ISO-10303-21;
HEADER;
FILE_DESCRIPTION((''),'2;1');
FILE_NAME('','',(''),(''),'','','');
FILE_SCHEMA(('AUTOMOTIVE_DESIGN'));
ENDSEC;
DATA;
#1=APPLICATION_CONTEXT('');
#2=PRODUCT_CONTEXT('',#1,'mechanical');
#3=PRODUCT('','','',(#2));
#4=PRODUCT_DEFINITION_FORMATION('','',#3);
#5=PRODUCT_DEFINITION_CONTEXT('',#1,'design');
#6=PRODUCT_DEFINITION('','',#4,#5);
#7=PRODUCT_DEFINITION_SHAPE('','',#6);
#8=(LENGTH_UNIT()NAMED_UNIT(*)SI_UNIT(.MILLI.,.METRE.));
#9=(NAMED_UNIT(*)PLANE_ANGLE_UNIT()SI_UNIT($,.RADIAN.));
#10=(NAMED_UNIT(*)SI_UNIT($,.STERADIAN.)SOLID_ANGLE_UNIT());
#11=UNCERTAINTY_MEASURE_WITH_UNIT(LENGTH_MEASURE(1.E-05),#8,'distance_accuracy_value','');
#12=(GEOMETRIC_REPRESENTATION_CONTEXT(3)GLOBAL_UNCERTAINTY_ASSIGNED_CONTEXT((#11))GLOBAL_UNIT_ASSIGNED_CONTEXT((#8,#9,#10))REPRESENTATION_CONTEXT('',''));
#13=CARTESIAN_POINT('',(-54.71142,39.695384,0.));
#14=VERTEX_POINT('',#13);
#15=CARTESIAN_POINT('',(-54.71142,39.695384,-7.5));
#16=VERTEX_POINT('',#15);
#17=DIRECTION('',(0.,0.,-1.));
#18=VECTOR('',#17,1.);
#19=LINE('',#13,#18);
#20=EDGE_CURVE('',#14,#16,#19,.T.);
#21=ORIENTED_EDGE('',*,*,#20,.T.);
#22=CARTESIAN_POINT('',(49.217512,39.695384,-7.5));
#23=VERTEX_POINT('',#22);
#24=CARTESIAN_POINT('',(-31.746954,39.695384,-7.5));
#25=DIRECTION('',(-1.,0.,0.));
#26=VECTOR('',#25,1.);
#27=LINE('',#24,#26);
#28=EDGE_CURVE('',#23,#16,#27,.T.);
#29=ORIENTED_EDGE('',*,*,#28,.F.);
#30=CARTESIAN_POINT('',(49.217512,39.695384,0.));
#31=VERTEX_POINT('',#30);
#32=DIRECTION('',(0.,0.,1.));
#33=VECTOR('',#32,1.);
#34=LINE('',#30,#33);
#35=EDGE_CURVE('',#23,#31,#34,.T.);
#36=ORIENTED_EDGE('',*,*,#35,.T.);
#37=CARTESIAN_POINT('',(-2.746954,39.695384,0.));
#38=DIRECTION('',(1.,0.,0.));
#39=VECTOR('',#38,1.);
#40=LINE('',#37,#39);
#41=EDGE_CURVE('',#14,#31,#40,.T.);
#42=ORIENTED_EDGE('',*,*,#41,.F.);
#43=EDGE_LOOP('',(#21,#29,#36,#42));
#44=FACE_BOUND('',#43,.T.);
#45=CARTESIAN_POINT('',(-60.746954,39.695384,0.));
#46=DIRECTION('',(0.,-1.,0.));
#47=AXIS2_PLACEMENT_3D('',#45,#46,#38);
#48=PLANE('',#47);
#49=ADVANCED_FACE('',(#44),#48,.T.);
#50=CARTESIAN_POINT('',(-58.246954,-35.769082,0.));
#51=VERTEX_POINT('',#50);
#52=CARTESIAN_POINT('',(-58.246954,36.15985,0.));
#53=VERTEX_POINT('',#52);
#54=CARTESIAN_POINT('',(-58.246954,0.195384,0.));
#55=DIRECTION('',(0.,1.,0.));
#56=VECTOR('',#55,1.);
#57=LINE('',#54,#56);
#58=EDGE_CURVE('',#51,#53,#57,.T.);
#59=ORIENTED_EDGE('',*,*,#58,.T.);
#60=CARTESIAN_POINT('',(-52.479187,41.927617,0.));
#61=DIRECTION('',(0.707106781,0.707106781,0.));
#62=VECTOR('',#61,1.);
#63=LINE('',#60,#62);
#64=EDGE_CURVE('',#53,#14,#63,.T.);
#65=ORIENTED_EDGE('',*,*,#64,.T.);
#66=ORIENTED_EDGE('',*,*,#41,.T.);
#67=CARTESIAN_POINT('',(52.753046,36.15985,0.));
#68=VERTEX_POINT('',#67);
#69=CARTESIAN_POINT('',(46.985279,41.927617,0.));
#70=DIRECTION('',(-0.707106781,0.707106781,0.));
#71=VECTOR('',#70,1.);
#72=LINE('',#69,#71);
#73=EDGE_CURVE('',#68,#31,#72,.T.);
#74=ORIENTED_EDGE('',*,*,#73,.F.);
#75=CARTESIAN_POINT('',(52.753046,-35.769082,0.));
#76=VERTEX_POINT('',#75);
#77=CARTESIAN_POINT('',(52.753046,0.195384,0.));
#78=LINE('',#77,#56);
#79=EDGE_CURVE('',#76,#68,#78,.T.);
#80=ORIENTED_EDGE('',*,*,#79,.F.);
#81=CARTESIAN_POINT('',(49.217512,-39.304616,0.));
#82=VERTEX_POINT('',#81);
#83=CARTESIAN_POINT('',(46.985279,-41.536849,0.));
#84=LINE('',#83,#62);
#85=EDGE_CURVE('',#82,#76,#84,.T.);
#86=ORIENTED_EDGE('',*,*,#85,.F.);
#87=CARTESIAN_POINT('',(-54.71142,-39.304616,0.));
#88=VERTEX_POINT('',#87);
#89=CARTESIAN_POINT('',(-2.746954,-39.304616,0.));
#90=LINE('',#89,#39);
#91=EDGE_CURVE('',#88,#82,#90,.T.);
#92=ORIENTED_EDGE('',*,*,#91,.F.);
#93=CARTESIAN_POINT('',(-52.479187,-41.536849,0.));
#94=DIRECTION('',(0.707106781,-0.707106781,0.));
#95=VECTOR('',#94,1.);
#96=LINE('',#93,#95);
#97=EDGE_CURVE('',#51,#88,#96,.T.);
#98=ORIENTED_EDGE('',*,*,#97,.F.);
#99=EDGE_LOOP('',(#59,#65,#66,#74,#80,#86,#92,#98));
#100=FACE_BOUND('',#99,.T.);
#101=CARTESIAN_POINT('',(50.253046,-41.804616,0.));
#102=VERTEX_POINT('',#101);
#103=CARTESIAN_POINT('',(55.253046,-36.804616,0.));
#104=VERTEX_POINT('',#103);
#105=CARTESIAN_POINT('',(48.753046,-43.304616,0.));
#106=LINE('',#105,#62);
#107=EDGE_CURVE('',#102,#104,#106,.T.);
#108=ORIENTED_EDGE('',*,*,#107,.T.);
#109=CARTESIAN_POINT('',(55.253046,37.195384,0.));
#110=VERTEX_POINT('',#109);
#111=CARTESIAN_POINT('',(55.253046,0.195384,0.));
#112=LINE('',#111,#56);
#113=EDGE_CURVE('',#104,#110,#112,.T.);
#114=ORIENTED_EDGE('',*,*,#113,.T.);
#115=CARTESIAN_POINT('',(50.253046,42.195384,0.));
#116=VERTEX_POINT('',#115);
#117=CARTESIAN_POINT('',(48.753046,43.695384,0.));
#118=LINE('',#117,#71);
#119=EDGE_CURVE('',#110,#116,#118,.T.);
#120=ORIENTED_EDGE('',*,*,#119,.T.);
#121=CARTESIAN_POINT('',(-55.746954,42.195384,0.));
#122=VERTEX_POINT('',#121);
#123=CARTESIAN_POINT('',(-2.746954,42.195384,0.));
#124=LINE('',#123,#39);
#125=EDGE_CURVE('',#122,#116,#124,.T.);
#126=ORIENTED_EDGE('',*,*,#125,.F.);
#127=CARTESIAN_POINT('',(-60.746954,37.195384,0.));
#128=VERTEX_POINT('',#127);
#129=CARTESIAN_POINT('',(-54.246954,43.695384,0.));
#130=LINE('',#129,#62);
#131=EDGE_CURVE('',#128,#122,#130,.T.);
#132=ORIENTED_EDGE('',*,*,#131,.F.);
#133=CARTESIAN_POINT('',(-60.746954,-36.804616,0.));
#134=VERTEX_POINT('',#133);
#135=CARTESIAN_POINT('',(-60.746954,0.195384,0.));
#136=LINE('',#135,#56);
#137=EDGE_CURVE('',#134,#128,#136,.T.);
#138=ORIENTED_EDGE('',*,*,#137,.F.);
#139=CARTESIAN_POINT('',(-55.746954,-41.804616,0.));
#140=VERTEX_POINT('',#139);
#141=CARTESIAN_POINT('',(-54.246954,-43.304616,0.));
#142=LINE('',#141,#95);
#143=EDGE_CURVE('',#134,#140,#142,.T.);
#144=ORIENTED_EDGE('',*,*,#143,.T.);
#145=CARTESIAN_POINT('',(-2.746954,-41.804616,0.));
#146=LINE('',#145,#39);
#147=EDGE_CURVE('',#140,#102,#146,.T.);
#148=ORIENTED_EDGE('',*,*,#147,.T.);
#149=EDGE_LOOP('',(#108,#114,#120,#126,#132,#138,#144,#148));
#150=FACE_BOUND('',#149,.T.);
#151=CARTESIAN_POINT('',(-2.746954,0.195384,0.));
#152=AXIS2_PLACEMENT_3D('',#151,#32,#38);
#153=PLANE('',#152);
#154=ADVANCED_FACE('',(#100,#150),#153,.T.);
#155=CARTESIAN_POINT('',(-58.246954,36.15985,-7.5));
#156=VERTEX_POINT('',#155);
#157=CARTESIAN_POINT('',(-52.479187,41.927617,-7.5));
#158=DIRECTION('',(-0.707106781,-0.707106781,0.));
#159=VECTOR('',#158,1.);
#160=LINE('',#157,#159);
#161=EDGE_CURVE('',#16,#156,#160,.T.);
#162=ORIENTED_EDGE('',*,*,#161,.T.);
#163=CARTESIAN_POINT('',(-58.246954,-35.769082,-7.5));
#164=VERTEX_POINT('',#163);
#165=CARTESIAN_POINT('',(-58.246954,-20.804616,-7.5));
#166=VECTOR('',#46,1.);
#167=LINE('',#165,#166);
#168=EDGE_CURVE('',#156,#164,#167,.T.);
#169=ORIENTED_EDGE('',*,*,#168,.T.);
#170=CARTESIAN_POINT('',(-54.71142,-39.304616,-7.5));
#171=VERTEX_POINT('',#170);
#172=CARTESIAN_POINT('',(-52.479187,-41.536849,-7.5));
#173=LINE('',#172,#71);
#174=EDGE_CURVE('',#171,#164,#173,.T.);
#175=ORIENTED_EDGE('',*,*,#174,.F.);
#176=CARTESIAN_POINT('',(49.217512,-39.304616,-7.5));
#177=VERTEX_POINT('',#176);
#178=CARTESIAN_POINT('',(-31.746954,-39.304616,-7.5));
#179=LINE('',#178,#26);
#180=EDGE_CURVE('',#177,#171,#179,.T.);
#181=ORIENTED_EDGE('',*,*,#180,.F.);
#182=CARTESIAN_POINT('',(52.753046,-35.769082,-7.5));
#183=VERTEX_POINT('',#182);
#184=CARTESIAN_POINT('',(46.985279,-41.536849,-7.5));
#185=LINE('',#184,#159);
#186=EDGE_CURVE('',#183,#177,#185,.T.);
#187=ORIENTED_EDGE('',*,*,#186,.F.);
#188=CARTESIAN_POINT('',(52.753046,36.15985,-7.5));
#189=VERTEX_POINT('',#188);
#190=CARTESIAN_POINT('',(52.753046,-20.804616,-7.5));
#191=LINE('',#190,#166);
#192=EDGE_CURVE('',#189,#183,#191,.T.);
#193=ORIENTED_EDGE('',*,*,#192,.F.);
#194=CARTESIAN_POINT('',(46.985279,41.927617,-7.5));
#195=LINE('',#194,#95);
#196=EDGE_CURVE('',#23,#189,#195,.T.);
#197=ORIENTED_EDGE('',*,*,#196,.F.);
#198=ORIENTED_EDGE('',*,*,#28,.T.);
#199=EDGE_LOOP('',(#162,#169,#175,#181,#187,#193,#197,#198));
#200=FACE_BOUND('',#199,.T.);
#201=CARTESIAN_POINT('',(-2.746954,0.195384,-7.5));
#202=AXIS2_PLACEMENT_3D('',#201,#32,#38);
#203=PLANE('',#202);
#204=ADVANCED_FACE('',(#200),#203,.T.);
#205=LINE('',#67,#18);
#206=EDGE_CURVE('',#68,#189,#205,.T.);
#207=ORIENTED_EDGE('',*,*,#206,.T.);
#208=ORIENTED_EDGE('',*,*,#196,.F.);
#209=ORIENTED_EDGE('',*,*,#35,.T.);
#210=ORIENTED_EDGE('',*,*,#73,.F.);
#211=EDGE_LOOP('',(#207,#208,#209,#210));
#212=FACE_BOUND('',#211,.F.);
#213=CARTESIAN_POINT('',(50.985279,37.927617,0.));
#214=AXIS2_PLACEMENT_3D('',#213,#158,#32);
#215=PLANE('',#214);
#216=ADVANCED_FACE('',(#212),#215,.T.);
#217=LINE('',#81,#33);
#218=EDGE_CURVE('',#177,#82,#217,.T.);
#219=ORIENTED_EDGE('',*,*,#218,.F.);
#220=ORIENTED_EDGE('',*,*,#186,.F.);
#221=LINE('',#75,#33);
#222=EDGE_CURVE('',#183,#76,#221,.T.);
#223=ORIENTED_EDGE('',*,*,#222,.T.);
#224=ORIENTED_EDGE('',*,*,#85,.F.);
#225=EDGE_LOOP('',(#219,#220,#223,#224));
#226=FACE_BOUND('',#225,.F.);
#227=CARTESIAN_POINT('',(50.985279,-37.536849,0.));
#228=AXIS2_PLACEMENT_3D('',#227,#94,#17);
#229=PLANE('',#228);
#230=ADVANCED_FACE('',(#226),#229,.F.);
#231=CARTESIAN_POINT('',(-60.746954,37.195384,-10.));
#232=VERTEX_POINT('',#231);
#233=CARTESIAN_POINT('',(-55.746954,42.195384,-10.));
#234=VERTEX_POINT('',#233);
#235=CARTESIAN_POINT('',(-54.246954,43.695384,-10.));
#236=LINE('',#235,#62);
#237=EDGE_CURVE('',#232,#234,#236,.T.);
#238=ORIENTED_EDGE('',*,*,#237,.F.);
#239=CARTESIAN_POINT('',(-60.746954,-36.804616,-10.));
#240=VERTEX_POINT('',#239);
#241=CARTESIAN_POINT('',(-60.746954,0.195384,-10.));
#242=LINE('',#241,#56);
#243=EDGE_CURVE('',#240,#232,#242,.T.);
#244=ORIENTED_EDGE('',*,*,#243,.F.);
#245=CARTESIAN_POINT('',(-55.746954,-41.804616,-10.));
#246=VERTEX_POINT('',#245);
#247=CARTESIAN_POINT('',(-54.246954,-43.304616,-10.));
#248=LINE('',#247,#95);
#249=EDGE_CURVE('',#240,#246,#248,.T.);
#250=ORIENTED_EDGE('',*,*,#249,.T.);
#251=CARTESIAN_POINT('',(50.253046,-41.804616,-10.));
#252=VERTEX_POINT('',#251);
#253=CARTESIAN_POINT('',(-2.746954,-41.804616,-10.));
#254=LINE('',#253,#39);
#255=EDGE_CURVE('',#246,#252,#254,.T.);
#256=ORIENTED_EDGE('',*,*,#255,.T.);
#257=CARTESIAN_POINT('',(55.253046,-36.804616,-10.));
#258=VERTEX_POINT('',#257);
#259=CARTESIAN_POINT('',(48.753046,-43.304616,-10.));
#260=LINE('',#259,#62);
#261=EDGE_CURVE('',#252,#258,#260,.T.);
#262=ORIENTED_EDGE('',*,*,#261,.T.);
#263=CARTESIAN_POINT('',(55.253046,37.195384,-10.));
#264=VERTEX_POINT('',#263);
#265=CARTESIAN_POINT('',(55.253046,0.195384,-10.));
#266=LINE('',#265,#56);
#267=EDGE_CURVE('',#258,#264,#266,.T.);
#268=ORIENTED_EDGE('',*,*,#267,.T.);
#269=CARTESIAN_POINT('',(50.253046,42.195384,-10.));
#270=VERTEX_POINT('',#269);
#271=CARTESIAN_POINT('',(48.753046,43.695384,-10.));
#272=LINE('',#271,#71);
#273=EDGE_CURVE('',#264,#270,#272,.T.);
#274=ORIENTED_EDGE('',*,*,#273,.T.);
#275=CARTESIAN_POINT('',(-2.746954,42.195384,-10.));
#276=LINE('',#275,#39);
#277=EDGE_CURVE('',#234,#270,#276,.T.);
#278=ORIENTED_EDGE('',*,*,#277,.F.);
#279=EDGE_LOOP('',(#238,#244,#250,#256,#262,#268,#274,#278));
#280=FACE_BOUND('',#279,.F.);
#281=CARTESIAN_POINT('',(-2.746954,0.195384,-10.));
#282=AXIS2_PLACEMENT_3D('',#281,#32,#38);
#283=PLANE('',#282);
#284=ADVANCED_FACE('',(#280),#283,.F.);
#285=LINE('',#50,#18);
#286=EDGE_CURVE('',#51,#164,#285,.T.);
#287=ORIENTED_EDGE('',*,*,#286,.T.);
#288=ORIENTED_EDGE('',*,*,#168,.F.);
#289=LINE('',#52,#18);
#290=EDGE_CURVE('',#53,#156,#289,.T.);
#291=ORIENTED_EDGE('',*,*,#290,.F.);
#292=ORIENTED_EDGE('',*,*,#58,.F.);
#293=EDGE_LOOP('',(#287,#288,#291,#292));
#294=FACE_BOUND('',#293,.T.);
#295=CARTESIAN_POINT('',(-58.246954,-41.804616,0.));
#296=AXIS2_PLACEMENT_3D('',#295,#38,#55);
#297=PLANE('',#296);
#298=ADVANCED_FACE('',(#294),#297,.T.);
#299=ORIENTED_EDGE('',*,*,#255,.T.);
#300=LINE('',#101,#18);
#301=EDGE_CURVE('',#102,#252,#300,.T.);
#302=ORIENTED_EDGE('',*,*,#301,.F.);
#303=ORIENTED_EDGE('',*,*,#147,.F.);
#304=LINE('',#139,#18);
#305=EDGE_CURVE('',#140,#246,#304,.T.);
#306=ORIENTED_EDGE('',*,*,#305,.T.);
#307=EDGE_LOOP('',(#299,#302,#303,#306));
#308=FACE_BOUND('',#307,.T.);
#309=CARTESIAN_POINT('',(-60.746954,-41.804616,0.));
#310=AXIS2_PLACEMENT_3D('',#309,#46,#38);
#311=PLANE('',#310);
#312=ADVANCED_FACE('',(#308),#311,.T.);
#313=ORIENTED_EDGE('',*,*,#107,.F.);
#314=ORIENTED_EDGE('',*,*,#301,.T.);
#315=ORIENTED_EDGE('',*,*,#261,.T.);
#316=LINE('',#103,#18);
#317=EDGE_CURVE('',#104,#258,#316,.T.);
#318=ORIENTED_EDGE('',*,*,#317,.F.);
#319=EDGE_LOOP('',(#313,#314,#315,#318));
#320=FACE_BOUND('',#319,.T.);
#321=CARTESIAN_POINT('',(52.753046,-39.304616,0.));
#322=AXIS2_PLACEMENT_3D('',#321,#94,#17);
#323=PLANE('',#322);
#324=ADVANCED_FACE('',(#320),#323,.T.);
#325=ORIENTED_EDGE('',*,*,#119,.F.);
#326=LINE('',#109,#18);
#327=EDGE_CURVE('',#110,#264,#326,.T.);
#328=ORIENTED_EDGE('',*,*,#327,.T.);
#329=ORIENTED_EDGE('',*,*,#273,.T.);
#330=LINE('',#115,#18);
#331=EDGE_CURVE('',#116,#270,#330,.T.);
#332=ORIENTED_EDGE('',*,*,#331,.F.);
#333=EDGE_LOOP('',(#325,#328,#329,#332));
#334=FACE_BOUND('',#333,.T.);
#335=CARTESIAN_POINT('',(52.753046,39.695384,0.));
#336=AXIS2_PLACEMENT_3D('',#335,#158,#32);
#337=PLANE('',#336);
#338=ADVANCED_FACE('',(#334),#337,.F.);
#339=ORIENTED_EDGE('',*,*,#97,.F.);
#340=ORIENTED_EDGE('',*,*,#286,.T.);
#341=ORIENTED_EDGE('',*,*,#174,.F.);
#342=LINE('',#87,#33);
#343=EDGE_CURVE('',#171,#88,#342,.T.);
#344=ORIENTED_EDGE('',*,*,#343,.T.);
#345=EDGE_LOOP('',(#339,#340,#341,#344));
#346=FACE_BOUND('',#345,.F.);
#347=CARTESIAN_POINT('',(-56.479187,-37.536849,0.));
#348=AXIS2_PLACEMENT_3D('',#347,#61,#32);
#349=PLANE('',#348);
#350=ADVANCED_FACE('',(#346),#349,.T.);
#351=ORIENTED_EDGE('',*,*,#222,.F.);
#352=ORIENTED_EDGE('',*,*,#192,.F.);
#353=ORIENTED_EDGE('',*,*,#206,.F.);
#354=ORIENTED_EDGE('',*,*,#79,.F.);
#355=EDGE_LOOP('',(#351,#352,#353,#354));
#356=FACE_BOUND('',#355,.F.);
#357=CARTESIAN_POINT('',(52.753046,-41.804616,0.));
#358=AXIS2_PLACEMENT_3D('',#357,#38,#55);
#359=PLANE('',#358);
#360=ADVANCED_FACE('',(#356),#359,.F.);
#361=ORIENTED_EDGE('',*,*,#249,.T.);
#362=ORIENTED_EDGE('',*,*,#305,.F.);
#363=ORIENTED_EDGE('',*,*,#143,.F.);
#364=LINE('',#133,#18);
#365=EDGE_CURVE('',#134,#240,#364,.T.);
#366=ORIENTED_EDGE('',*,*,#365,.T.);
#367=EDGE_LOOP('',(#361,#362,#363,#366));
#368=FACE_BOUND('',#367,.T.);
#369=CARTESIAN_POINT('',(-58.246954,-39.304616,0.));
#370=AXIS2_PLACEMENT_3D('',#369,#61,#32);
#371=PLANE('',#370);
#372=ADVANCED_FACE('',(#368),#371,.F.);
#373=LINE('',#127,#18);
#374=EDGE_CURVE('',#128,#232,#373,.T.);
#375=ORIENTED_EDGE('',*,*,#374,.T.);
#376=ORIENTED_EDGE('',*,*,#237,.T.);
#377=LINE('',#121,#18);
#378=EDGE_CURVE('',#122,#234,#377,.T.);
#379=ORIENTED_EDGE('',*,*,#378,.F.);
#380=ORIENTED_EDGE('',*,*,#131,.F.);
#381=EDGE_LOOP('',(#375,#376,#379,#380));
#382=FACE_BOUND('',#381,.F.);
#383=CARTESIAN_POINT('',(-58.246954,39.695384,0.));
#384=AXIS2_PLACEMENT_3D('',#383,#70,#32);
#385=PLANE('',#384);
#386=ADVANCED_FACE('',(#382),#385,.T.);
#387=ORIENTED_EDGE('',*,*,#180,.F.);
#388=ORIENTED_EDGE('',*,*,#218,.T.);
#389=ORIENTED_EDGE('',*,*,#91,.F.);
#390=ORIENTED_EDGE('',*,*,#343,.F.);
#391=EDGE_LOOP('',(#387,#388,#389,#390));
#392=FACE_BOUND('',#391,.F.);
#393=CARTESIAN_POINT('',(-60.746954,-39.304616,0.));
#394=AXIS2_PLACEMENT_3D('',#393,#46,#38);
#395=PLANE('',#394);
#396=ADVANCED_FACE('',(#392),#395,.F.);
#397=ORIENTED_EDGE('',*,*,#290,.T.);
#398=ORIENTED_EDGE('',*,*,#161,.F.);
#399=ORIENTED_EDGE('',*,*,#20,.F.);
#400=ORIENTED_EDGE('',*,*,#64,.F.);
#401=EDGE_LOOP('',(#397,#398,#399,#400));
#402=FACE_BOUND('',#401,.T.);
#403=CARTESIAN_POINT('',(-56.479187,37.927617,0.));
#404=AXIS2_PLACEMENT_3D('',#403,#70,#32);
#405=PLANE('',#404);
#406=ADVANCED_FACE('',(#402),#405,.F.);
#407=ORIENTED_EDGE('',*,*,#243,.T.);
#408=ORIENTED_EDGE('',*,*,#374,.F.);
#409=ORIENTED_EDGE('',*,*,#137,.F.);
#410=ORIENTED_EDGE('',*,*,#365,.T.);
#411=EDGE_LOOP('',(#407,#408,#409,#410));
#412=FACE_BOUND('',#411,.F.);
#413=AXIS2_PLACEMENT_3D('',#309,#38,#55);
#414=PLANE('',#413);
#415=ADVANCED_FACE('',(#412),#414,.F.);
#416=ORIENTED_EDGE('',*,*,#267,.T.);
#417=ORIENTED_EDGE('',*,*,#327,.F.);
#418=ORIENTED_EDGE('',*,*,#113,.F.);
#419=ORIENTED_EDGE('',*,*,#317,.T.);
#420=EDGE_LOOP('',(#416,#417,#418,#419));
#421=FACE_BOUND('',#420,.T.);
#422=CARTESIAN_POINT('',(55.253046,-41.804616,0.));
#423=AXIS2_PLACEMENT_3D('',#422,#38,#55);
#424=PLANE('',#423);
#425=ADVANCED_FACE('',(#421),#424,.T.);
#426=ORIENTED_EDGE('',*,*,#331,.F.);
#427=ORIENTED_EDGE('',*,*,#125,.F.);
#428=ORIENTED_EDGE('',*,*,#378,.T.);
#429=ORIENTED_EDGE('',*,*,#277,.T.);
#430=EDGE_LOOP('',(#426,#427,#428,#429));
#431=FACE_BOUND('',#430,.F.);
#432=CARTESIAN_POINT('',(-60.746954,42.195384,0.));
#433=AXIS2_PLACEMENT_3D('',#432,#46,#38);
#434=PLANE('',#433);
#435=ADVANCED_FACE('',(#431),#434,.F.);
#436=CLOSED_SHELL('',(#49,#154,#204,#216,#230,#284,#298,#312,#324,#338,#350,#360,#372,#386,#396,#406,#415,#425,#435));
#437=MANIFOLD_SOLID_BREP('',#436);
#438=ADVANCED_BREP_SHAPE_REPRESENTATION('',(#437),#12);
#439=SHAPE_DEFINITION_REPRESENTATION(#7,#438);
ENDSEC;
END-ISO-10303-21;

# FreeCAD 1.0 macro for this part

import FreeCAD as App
import Part
import Sketcher


def edges_at(feature, points):
    """Names of the edges that pass closest to the given points."""
    edges = feature.Shape.Edges
    near = lambda p: min(range(len(edges)), key=lambda i: edges[i].distToShape(Part.Vertex(*p))[0])
    return sorted({f"Edge{near(p) + 1}" for p in points})


def faces_at(feature, points):
    """Names of the faces that lie closest to the given points."""
    faces = feature.Shape.Faces
    near = lambda p: min(range(len(faces)), key=lambda i: faces[i].distToShape(Part.Vertex(*p))[0])
    return sorted({f"Face{near(p) + 1}" for p in points})

doc = App.newDocument("Part")
body = doc.addObject("PartDesign::Body", "Body")

sketch1 = body.newObject("Sketcher::SketchObject", "Sketch")
sketch1.AttachmentSupport = (doc.getObject("XY_Plane"), [""])
sketch1.MapMode = "FlatFace"
sketch1.addGeometry([
    Part.LineSegment(App.Vector(-61, 42, 0), App.Vector(-61, -42, 0)),
    Part.LineSegment(App.Vector(-61, -42, 0), App.Vector(55, -42, 0)),
    Part.LineSegment(App.Vector(55, -42, 0), App.Vector(55, 42, 0)),
    Part.LineSegment(App.Vector(55, 42, 0), App.Vector(-61, 42, 0)),
], False)
sketch1.addConstraint([
    Sketcher.Constraint("Coincident", 0, 2, 1, 1),
    Sketcher.Constraint("Coincident", 1, 2, 2, 1),
    Sketcher.Constraint("Coincident", 2, 2, 3, 1),
    Sketcher.Constraint("Coincident", 3, 2, 0, 1),
    Sketcher.Constraint("Vertical", 0),
    Sketcher.Constraint("Horizontal", 1),
    Sketcher.Constraint("Vertical", 2),
    Sketcher.Constraint("Horizontal", 3),
    Sketcher.Constraint("DistanceX", 1, 1, 1, 2, 116.0),
    Sketcher.Constraint("DistanceY", 0, 2, 0, 1, 84.0),
    Sketcher.Constraint("DistanceX", 0, 2, -1, 1, 60.746954),
    Sketcher.Constraint("DistanceY", 0, 2, -1, 1, 41.804616),
])
pad1 = body.newObject("PartDesign::Pad", "Pad")
pad1.Profile = sketch1
pad1.Length = 10
pad1.Reversed = True
doc.recompute()

chamfer = body.newObject("PartDesign::Chamfer", "Chamfer")
chamfer.Base = (pad1, edges_at(pad1, [
    (55.253, -41.805, -5),
    (-60.747, -41.805, -5),
    (55.253, 42.195, -5),
    (-60.747, 42.195, -5),
]))
chamfer.Size = 5
doc.recompute()

thickness = body.newObject("PartDesign::Thickness", "Thickness")
thickness.Base = (chamfer, faces_at(chamfer, [(-2.747, 0.195, 0)]))
thickness.Value = 2.5
thickness.Reversed = True
thickness.Join = "Arc"

doc.recompute()
